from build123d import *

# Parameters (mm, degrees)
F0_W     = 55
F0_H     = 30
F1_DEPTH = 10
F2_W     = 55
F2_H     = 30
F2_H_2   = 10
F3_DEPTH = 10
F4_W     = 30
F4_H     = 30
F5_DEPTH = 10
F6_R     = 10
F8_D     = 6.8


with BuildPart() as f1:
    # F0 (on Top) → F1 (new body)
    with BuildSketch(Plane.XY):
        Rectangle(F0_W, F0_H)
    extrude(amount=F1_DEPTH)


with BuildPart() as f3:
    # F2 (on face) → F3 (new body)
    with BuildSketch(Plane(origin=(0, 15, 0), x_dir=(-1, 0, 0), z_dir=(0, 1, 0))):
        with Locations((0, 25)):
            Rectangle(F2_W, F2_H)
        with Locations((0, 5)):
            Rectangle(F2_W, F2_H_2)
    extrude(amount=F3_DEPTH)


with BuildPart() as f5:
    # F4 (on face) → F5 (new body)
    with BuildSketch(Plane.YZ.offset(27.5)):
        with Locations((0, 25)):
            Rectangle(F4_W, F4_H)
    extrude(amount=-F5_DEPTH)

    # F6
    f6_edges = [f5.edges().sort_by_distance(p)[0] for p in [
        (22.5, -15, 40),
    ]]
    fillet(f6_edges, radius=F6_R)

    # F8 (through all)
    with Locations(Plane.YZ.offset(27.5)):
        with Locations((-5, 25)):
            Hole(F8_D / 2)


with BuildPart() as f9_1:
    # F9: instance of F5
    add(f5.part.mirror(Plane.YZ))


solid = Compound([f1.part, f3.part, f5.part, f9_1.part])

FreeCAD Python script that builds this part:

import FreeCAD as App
import Part
import Sketcher

V = App.Vector
Q = App.Units.Quantity


def edges_at(feature, points):
    """Names of the edges that pass closest to the given points."""
    edges = feature.Shape.Edges
    near = lambda p: min(range(len(edges)), key=lambda i: edges[i].distToShape(Part.Vertex(*p))[0])
    return sorted({f"Edge{near(p) + 1}" for p in points})


def add_polygon(sketch, points):
    """Adds a closed chain of lines whose ends are joined by coincident constraints."""
    first, n = sketch.GeometryCount, len(points)
    for a, b in zip(points, points[1:] + points[:1]):
        sketch.addGeometry(Part.LineSegment(App.Vector(*a, 0), App.Vector(*b, 0)), False)
    for i in range(n):
        sketch.addConstraint(Sketcher.Constraint("Coincident", first + i, 2, first + (i + 1) % n, 1))

doc = App.newDocument("Part")
body = doc.addObject("PartDesign::Body", "Body")

# Sketch on XY plane
sketch1 = body.newObject("Sketcher::SketchObject", "Sketch")
sketch1.AttachmentSupport = (doc.getObject("XY_Plane"), [""])
sketch1.MapMode = "FlatFace"
add_polygon(sketch1, [(-28, 15), (-28, -15), (28, -15), (28, 15)])  # lines 0-3
sketch1.addConstraint([
    Sketcher.Constraint("Vertical", 0),
    Sketcher.Constraint("Horizontal", 1),
    Sketcher.Constraint("Vertical", 2),
    Sketcher.Constraint("Horizontal", 3),
    Sketcher.Constraint("Symmetric", 0, 2, 2, 2, -1, 1),
    Sketcher.Constraint("DistanceX", 1, 1, 1, 2, Q("55 mm")),
    Sketcher.Constraint("DistanceY", 0, 2, 0, 1, Q("30 mm")),
])
pad1 = body.newObject("PartDesign::Pad", "Pad")
pad1.Profile = sketch1
pad1.Length = 10
body2 = doc.addObject("PartDesign::Body", "Body001")

# Sketch on XZ plane
sketch2 = body2.newObject("Sketcher::SketchObject", "Sketch001")
sketch2.AttachmentSupport = (doc.getObject("XZ_Plane001"), [""])
sketch2.MapMode = "FlatFace"
sketch2.AttachmentOffset = App.Placement(V(0, 0, -15), App.Rotation())
add_polygon(sketch2, [(28, 40), (28, 0), (-28, 0), (-28, 40)])  # lines 0-3
sketch2.addConstraint([
    Sketcher.Constraint("Vertical", 0),
    Sketcher.Constraint("Horizontal", 1),
    Sketcher.Constraint("Vertical", 2),
    Sketcher.Constraint("Horizontal", 3),
    Sketcher.Constraint("Symmetric", 0, 2, 1, 2, -1, 1),
    Sketcher.Constraint("DistanceX", 1, 2, 1, 1, Q("55 mm")),
    Sketcher.Constraint("DistanceY", 0, 2, 0, 1, Q("40 mm")),
])
pad2 = body2.newObject("PartDesign::Pad", "Pad001")
pad2.Profile = sketch2
pad2.Length = 10
pad2.Reversed = True
body3 = doc.addObject("PartDesign::Body", "Body002")

# Sketch on YZ plane
sketch3 = body3.newObject("Sketcher::SketchObject", "Sketch002")
sketch3.AttachmentSupport = (doc.getObject("YZ_Plane002"), [""])
sketch3.MapMode = "FlatFace"
sketch3.AttachmentOffset = App.Placement(V(0, 0, 27.5), App.Rotation())
add_polygon(sketch3, [(-15, 40), (-15, 10), (15, 10), (15, 40)])  # lines 0-3
sketch3.addConstraint([
    Sketcher.Constraint("Vertical", 0),
    Sketcher.Constraint("Horizontal", 1),
    Sketcher.Constraint("Vertical", 2),
    Sketcher.Constraint("Horizontal", 3),
    Sketcher.Constraint("Equal", 3, 0),
    Sketcher.Constraint("DistanceX", 1, 1, 1, 2, Q("30 mm")),
    Sketcher.Constraint("DistanceX", 0, 2, -1, 1, Q("15 mm")),
    Sketcher.Constraint("DistanceY", -1, 1, 0, 2, Q("10 mm")),
])
pad3 = body3.newObject("PartDesign::Pad", "Pad002")
pad3.Profile = sketch3
pad3.Length = 10
pad3.Reversed = True
doc.recompute()

fillet = body3.newObject("PartDesign::Fillet", "Fillet")
fillet.Base = (pad3, edges_at(pad3, [(22.5, -15, 40)]))
fillet.Radius = 10

# Sketch on YZ plane
sketch4 = body3.newObject("Sketcher::SketchObject", "Sketch003")
sketch4.AttachmentSupport = (doc.getObject("YZ_Plane002"), [""])
sketch4.MapMode = "FlatFace"
sketch4.AttachmentOffset = App.Placement(V(0, 0, 27.5), App.Rotation())
sketch4.addGeometry(Part.Circle(V(-5, 25, 0), V(0, 0, 1), 3.4), False)
sketch4.addConstraint([
    Sketcher.Constraint("Diameter", 0, Q("6.8 mm")),
    Sketcher.Constraint("DistanceX", 0, 3, -1, 1, Q("5 mm")),
    Sketcher.Constraint("DistanceY", -1, 1, 0, 3, Q("25 mm")),
])
doc.recompute()
hole = body3.newObject("PartDesign::Hole", "Hole")
hole.Profile = sketch4
hole.ThreadType = "None"
hole.Diameter = 6.8
hole.DepthType = "ThroughAll"
body4 = doc.addObject("PartDesign::Body", "Body003")
doc.recompute()

mirroring = doc.addObject("Part::Mirroring", "Mirroring")
mirroring.Source = body3
mirroring.Base = V(0, 0, 0)
mirroring.Normal = V(1, 0, 0)
body4.BaseFeature = mirroring
doc.recompute()
mirroring.Visibility = False

doc.recompute()
